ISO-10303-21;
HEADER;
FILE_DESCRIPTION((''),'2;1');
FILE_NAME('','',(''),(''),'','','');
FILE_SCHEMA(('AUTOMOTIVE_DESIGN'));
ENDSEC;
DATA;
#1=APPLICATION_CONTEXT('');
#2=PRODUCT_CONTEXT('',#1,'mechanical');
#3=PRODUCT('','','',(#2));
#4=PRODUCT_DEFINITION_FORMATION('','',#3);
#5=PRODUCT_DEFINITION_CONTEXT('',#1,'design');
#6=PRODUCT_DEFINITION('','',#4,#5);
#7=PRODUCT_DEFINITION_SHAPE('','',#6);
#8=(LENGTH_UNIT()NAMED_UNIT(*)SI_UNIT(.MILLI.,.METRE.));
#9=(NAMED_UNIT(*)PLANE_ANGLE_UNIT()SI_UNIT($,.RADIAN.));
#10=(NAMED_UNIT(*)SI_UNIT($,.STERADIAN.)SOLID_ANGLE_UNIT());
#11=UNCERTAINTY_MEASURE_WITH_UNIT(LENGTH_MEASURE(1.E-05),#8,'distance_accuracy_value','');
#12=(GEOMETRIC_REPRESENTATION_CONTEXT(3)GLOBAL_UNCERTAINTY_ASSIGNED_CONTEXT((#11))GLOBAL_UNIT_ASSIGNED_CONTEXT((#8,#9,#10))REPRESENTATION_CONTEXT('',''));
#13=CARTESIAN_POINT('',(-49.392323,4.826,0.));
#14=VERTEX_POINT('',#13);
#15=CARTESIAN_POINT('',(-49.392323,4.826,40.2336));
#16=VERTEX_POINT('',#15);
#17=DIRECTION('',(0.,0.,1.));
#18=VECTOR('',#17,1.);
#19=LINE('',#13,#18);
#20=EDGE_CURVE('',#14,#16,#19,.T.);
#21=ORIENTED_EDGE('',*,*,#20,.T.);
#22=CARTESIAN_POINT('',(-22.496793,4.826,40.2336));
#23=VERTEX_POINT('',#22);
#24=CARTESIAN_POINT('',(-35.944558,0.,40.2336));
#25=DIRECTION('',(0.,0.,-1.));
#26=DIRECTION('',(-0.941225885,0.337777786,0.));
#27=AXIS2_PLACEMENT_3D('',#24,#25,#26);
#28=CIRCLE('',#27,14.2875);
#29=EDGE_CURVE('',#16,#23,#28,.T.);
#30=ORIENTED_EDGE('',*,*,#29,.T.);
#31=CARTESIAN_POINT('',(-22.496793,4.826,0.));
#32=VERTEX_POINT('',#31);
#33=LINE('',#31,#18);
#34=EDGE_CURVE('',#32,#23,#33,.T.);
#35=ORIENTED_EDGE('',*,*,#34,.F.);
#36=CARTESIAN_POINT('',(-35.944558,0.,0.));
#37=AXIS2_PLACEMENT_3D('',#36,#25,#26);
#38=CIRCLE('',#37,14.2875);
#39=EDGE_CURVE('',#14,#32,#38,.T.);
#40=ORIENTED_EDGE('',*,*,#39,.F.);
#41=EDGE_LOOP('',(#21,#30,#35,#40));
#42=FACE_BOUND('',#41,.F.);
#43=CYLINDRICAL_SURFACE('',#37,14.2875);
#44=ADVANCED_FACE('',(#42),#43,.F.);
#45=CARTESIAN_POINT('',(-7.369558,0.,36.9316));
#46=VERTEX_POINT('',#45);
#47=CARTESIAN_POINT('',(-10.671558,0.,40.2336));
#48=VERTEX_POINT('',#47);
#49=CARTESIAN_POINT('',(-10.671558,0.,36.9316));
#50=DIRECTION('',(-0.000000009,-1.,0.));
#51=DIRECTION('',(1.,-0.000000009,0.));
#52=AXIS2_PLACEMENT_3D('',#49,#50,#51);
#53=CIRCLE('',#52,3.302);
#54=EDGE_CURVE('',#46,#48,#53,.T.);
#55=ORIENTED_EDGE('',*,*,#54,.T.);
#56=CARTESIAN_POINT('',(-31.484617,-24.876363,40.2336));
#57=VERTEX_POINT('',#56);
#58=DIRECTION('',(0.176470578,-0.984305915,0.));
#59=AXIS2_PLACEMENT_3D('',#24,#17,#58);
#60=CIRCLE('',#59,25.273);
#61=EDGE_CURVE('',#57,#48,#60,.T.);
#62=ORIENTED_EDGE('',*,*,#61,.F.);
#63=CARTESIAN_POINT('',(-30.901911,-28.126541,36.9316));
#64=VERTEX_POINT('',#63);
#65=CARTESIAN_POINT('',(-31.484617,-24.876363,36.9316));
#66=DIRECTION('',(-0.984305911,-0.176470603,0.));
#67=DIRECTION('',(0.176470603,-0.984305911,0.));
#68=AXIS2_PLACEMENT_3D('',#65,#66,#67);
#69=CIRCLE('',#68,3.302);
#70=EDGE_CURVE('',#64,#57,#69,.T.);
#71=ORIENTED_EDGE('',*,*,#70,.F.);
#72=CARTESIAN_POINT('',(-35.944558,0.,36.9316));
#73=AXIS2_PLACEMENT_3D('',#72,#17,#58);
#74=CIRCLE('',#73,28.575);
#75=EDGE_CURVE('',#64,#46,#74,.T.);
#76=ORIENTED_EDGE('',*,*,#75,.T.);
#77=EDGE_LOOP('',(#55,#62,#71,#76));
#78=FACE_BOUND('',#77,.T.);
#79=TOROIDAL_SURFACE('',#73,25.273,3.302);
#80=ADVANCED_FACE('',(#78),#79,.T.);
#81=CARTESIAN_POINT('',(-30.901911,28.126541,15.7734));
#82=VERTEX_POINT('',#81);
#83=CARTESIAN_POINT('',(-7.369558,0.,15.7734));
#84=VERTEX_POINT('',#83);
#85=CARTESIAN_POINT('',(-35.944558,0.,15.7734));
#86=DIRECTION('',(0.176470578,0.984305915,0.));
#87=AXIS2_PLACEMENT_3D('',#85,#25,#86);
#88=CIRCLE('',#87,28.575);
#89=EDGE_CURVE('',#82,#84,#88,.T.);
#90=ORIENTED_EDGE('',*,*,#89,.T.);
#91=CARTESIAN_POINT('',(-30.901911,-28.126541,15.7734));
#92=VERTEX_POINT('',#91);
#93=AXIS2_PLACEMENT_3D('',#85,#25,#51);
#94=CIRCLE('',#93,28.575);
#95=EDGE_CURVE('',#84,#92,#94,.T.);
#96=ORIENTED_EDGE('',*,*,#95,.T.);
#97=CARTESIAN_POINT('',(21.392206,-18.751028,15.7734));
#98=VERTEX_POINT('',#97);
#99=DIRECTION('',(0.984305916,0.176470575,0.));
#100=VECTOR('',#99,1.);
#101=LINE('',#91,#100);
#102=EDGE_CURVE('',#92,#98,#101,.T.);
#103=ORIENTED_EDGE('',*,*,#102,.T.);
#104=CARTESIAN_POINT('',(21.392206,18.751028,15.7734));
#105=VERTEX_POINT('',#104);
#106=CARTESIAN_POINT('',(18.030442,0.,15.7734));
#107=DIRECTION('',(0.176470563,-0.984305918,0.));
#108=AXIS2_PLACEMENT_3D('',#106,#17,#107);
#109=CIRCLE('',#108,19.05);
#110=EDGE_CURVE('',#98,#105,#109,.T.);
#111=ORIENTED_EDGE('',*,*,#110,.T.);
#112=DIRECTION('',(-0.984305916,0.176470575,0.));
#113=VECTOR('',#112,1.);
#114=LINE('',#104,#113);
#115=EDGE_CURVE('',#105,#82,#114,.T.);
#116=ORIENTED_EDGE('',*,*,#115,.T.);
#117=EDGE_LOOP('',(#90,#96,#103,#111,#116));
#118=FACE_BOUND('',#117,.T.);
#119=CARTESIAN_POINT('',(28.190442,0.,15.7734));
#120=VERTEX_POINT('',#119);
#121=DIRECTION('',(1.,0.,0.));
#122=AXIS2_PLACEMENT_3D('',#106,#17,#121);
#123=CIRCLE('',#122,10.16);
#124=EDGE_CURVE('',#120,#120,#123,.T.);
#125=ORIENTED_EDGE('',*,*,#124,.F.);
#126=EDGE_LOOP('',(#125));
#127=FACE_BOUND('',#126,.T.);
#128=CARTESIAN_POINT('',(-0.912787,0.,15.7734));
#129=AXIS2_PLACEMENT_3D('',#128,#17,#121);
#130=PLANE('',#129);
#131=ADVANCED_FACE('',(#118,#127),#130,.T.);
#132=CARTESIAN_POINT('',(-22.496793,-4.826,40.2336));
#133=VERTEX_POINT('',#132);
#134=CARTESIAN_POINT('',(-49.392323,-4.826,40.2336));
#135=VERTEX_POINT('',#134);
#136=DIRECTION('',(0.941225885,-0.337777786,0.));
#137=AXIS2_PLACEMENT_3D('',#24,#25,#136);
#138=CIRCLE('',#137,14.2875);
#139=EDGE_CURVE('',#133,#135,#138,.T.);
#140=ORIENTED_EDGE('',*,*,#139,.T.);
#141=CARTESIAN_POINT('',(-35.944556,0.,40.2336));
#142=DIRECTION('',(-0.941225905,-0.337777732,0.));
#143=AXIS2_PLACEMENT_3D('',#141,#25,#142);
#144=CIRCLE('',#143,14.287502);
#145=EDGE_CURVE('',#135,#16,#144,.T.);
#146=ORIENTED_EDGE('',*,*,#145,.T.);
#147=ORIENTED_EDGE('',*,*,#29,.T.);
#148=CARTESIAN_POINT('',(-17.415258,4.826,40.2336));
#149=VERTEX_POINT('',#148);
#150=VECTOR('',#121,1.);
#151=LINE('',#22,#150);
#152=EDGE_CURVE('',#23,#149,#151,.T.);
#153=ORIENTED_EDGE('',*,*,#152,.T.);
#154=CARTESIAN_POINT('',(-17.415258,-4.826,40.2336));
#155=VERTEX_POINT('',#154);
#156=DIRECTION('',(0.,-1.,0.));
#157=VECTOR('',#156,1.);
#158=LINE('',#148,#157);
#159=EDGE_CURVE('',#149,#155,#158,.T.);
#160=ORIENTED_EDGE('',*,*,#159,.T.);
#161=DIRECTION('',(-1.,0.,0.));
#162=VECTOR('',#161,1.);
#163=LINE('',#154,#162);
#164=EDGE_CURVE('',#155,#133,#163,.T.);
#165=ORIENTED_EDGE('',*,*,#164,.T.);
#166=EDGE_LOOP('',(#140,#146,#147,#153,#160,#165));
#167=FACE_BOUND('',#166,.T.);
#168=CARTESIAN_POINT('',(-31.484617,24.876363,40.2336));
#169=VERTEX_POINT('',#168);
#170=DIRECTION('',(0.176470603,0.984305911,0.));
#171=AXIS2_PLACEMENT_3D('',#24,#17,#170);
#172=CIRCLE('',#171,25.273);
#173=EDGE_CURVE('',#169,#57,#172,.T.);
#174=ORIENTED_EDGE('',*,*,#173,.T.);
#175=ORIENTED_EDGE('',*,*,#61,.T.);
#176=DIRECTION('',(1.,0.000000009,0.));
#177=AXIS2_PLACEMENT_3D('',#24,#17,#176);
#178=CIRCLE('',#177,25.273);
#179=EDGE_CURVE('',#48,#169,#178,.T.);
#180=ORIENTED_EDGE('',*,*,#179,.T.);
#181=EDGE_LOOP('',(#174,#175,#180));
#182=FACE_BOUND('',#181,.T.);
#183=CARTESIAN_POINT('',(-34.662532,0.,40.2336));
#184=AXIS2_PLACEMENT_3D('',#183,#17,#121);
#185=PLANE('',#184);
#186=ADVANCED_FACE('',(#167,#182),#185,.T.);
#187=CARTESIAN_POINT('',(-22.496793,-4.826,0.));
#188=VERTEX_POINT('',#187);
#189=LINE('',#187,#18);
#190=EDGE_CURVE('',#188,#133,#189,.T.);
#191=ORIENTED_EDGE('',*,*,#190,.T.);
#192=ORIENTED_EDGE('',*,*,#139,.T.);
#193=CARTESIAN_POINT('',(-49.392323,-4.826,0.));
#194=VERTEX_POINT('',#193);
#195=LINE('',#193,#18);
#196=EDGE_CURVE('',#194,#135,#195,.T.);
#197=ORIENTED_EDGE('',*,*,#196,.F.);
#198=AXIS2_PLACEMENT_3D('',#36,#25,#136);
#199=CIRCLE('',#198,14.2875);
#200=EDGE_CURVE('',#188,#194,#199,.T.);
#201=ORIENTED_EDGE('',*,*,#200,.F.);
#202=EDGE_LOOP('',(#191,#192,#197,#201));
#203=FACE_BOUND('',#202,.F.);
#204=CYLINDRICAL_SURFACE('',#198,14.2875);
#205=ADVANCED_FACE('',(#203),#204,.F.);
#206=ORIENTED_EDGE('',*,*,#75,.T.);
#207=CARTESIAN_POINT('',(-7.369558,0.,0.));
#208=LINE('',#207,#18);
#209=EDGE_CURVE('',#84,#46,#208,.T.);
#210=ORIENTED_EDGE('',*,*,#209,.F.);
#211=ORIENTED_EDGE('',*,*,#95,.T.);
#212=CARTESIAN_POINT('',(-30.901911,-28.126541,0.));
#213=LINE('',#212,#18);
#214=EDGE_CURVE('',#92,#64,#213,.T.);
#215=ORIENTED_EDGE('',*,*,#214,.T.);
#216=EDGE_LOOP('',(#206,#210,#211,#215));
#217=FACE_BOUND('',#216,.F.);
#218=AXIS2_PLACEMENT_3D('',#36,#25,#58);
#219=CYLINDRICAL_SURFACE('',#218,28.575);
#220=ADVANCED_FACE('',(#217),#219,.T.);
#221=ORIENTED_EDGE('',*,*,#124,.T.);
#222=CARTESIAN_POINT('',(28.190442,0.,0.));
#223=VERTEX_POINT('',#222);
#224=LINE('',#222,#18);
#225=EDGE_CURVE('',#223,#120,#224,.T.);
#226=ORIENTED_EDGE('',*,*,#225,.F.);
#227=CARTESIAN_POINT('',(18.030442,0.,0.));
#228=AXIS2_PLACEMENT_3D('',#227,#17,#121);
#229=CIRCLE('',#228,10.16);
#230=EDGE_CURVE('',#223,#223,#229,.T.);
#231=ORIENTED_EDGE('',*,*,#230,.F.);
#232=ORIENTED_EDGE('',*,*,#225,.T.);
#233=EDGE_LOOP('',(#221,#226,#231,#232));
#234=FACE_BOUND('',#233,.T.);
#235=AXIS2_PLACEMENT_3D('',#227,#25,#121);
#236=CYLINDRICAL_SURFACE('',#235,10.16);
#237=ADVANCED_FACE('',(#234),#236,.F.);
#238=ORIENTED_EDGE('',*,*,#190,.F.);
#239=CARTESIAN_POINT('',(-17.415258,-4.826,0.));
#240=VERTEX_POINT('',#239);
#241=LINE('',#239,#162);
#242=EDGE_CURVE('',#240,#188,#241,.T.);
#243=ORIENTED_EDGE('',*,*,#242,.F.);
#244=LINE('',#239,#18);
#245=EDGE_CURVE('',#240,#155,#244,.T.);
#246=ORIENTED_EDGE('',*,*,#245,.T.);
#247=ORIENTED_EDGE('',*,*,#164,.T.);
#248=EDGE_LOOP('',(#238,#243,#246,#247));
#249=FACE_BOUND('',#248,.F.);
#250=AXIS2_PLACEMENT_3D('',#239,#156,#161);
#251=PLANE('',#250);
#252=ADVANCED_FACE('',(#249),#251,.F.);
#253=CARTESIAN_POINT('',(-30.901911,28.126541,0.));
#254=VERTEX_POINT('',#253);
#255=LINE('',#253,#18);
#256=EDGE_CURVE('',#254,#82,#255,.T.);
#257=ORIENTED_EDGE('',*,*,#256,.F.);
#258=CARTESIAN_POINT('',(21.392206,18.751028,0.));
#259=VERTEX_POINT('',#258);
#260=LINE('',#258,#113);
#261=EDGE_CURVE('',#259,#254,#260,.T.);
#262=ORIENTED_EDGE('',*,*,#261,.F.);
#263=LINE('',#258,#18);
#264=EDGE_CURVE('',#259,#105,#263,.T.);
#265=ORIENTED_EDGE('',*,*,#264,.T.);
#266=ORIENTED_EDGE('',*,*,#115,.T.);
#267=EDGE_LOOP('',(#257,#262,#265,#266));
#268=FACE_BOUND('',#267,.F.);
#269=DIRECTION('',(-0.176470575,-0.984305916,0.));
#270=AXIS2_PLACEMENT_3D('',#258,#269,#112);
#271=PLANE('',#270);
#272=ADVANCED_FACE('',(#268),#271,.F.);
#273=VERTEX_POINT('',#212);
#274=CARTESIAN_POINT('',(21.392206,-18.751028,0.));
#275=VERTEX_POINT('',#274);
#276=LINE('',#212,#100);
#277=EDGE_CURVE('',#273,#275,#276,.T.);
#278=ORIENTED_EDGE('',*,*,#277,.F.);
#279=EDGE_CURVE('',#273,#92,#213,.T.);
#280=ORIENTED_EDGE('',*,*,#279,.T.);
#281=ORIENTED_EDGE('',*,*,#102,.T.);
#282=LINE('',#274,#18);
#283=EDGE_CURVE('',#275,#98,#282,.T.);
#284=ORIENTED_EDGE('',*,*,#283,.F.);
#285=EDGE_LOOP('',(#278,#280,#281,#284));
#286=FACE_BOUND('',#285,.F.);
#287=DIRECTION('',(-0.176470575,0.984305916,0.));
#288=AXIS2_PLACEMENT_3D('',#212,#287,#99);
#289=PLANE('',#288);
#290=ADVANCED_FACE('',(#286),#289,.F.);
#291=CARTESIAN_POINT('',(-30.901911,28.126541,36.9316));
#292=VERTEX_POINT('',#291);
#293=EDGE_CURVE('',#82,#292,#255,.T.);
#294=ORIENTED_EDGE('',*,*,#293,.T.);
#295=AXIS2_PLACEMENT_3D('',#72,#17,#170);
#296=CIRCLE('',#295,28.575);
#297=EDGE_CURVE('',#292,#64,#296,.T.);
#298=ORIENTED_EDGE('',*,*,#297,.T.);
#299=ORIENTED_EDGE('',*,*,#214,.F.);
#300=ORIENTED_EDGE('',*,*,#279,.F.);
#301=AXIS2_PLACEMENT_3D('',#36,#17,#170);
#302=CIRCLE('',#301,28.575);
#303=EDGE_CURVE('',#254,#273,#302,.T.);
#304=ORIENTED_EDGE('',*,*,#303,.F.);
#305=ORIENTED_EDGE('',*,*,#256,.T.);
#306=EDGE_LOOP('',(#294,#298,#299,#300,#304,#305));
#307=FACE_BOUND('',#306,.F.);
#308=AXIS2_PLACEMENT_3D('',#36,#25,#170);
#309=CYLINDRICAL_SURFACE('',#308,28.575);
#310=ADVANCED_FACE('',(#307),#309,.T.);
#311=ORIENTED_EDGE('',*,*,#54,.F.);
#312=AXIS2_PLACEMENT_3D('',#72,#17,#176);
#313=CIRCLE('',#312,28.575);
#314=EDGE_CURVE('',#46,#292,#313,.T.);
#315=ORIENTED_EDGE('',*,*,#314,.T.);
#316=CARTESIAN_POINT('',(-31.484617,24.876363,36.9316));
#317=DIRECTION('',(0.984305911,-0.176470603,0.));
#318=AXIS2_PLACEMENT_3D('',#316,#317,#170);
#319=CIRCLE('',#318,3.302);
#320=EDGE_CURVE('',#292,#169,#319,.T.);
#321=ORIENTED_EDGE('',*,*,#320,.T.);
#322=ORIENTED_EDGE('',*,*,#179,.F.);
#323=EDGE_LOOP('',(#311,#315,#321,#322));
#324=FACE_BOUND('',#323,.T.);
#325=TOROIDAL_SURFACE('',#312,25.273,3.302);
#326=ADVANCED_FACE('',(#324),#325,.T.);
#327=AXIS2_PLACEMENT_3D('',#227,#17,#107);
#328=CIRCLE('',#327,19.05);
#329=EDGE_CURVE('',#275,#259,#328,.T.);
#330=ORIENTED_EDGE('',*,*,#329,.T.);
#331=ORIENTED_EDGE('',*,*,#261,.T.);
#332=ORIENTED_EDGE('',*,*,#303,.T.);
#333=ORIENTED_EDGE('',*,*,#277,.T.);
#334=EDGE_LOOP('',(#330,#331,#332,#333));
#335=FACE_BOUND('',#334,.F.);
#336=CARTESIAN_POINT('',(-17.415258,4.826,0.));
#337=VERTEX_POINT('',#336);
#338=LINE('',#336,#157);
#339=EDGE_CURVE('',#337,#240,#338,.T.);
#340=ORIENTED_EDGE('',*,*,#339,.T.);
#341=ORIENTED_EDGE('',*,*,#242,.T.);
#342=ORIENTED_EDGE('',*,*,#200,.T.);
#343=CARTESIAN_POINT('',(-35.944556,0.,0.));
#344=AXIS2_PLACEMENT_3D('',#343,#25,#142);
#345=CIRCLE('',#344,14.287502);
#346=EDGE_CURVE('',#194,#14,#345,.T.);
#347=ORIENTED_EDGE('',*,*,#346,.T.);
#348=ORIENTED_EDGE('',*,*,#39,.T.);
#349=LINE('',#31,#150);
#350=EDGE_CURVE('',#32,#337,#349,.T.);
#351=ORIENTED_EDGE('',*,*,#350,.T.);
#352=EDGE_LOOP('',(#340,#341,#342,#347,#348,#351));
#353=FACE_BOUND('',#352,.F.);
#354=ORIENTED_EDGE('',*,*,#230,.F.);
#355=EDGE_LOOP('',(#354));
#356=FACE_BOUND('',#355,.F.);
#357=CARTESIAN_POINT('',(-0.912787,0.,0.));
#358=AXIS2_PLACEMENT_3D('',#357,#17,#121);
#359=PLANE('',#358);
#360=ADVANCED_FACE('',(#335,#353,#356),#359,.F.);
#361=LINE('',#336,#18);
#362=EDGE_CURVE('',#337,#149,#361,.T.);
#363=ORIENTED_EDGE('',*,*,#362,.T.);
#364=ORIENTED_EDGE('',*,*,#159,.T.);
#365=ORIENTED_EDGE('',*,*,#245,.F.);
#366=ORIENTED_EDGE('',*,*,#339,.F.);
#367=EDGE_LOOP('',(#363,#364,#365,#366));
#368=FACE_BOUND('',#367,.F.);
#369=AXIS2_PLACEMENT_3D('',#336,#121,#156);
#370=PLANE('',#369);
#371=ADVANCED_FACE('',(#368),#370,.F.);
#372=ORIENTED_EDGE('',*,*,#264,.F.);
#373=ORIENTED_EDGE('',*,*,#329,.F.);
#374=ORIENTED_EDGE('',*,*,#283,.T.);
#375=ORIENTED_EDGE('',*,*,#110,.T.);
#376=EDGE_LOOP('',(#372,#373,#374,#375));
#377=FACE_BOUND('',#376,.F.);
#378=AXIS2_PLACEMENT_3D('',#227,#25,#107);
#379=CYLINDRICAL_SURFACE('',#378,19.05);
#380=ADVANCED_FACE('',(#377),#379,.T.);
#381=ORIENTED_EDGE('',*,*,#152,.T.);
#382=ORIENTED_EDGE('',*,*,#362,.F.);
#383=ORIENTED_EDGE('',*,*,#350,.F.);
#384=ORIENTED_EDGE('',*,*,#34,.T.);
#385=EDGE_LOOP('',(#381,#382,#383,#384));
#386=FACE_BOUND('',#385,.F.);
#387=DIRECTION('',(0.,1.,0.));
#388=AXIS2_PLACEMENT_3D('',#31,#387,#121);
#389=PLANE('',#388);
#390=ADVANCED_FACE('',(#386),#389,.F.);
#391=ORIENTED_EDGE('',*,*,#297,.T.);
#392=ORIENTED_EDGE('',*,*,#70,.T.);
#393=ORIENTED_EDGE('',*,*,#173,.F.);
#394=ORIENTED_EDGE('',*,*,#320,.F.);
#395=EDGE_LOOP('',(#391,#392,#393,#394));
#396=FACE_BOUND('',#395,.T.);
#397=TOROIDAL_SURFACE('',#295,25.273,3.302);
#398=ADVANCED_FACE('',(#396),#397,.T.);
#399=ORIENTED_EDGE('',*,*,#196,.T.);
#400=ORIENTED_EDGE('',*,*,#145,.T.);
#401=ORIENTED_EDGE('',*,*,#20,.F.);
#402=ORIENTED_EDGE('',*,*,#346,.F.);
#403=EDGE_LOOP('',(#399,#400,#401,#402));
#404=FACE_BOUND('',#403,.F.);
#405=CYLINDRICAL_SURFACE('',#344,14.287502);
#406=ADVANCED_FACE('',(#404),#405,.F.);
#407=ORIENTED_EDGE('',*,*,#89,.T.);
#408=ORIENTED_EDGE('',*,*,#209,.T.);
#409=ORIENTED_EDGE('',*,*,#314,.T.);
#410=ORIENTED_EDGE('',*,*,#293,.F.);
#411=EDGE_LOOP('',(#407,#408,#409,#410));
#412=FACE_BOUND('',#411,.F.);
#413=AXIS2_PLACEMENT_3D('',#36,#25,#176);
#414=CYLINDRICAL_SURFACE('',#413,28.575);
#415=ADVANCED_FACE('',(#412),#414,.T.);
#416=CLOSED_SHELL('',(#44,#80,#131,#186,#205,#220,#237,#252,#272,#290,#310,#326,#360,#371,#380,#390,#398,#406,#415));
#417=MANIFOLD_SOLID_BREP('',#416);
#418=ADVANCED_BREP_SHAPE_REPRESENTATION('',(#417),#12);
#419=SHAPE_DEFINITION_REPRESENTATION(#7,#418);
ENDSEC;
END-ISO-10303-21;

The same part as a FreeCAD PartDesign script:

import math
import FreeCAD as App
import Part
import Sketcher

V = App.Vector
Q = App.Units.Quantity


def edges_at(feature, points):
    """Names of the edges that pass closest to the given points."""
    edges = feature.Shape.Edges
    near = lambda p: min(range(len(edges)), key=lambda i: edges[i].distToShape(Part.Vertex(*p))[0])
    return sorted({f"Edge{near(p) + 1}" for p in points})

doc = App.newDocument("Part")
params = doc.addObject("Spreadsheet::Sheet", "Params")
for row, (alias, value) in enumerate([
    ("sketch1_radius", "1.125 in"),
    ("sketch1_radius2", "0.5625 in"),
    ("sketch1_height", "0.38 in"),
    ("pad1_length", "1.584 in"),
    ("sketch2_diameter", "0.8 in"),
    ("sketch2_radius", "0.75 in"),
    ("sketch2_radius2", "1.125 in"),
    ("pad2_length", "0.621 in"),
    ("fillet_radius", "0.13 in"),
], start=1):
    params.set(f"A{row}", alias)
    params.set(f"B{row}", "=" + value)
    params.setAlias(f"B{row}", alias)

body = doc.addObject("PartDesign::Body", "Body")

# Sketch on XY plane
sketch1 = body.newObject("Sketcher::SketchObject", "Sketch")
sketch1.AttachmentSupport = (doc.getObject("XY_Plane"), [""])
sketch1.MapMode = "FlatFace"
sketch1.addGeometry(Part.ArcOfCircle(Part.Circle(V(-35.944558, 0, 0), V(0, 0, 1), 28.575), math.radians(-79.835752), math.radians(0)), False)
sketch1.addGeometry(Part.ArcOfCircle(Part.Circle(V(-35.944558, 0, 0), V(0, 0, 1), 28.575), math.radians(0), math.radians(79.835752)), False)
sketch1.addGeometry(Part.ArcOfCircle(Part.Circle(V(-35.944558, 0, 0), V(0, 0, 1), 28.575), math.radians(79.835751), math.radians(280.164249)), False)
sketch1.addGeometry(Part.ArcOfCircle(Part.Circle(V(-35.944558, 0, 0), V(0, 0, 1), 14.2875), math.radians(-160.258458), math.radians(-19.741542)), False)
sketch1.addGeometry(Part.ArcOfCircle(Part.Circle(V(-35.944556, 0, 0), V(0, 0, 1), 14.287502), math.radians(160.258461), math.radians(199.741539)), False)
sketch1.addGeometry(Part.ArcOfCircle(Part.Circle(V(-35.944558, 0, 0), V(0, 0, 1), 14.2875), math.radians(19.741542), math.radians(160.258458)), False)
sketch1.addGeometry(Part.LineSegment(V(-22.496793, 4.826, 0), V(-17.415258, 4.826, 0)), False)
sketch1.addGeometry(Part.LineSegment(V(-17.415258, 4.826, 0), V(-17.415258, -4.826, 0)), False)
sketch1.addGeometry(Part.LineSegment(V(-17.415258, -4.826, 0), V(-22.496793, -4.826, 0)), False)
sketch1.addConstraint(Sketcher.Constraint("Tangent", 0, 2, 1, 1))
sketch1.addConstraint(Sketcher.Constraint("Tangent", 1, 2, 2, 1))
sketch1.addConstraint(Sketcher.Constraint("Tangent", 2, 2, 0, 1))
sketch1.addConstraint(Sketcher.Constraint("Tangent", 3, 1, 4, 2))
sketch1.addConstraint(Sketcher.Constraint("Tangent", 4, 1, 5, 2))
sketch1.addConstraint(Sketcher.Constraint("Coincident", 5, 1, 6, 1))
sketch1.addConstraint(Sketcher.Constraint("Coincident", 6, 2, 7, 1))
sketch1.addConstraint(Sketcher.Constraint("Coincident", 7, 2, 8, 1))
sketch1.addConstraint(Sketcher.Constraint("Coincident", 8, 2, 3, 2))
sketch1.addConstraint(Sketcher.Constraint("Horizontal", 6))
sketch1.addConstraint(Sketcher.Constraint("Vertical", 7))
sketch1.addConstraint(Sketcher.Constraint("Horizontal", 8))
sketch1.addConstraint(Sketcher.Constraint("Coincident", 3, 3, 0, 3))
sketch1.addConstraint(Sketcher.Constraint("Coincident", 5, 3, 0, 3))
sketch1.addConstraint(Sketcher.Constraint("Symmetric", 1, 2, 2, 2, -1))
sketch1.addConstraint(Sketcher.Constraint("PointOnObject", 0, 2, -1))
sketch1.addConstraint(Sketcher.Constraint("Horizontal", 4, 1, 5, 1))
sketch1.addConstraint(Sketcher.Constraint("Horizontal", 3, 1, 7, 2))
sketch1.addConstraint(Sketcher.Constraint("Vertical", 3, 1, 4, 1))
sketch1.addConstraint(Sketcher.Constraint("Radius", 0, Q("1.125 in")))
sketch1.addConstraint(Sketcher.Constraint("Radius", 3, Q("0.5625 in")))
sketch1.addConstraint(Sketcher.Constraint("DistanceY", 7, 2, 7, 1, Q("0.38 in")))
sketch1.addConstraint(Sketcher.Constraint("DistanceX", 6, 2, 0, 2, Q("0.3955 in")))
sketch1.addConstraint(Sketcher.Constraint("DistanceX", 2, 3, -1, 1, Q("35.944558 mm")))
sketch1.addConstraint(Sketcher.Constraint("DistanceX", 1, 2, -1, 1, Q("30.901911 mm")))
sketch1.setExpression("Constraints[19]", "Params.sketch1_radius")
sketch1.setExpression("Constraints[20]", "Params.sketch1_radius2")
sketch1.setExpression("Constraints[21]", "Params.sketch1_height")
pad1 = body.newObject("PartDesign::Pad", "Pad")
pad1.Profile = sketch1
pad1.setExpression("Length", "Params.pad1_length")

# Sketch on XY plane
sketch2 = body.newObject("Sketcher::SketchObject", "Sketch001")
sketch2.AttachmentSupport = (doc.getObject("XY_Plane"), [""])
sketch2.MapMode = "FlatFace"
sketch2.addGeometry(Part.ArcOfCircle(Part.Circle(V(-35.944558, 0, 0), V(0, 0, 1), 28.575), math.radians(0), math.radians(79.835752)), False)
sketch2.addGeometry(Part.ArcOfCircle(Part.Circle(V(-35.944558, 0, 0), V(0, 0, 1), 28.575), math.radians(-79.835752), math.radians(0)), False)
sketch2.addGeometry(Part.LineSegment(V(-30.901911, -28.126541, 0), V(21.392206, -18.751028, 0)), False)
sketch2.addGeometry(Part.ArcOfCircle(Part.Circle(V(18.030442, 0, 0), V(0, 0, 1), 19.05), math.radians(-79.835753), math.radians(79.835753)), False)
sketch2.addGeometry(Part.LineSegment(V(21.392206, 18.751028, 0), V(-30.901911, 28.126541, 0)), False)
sketch2.addGeometry(Part.Circle(V(18.030442, 0, 0), V(0, 0, 1), 10.16), False)
sketch2.addConstraint(Sketcher.Constraint("Tangent", 0, 1, 1, 2))
sketch2.addConstraint(Sketcher.Constraint("Tangent", 1, 1, 2, 1))
sketch2.addConstraint(Sketcher.Constraint("Tangent", 2, 2, 3, 1))
sketch2.addConstraint(Sketcher.Constraint("Tangent", 3, 2, 4, 1))
sketch2.addConstraint(Sketcher.Constraint("Tangent", 4, 2, 0, 2))
sketch2.addConstraint(Sketcher.Constraint("Coincident", 5, 3, 3, 3))
sketch2.addConstraint(Sketcher.Constraint("Equal", 0, 1))
sketch2.addConstraint(Sketcher.Constraint("Symmetric", 2, 2, 3, 2, -1))
sketch2.addConstraint(Sketcher.Constraint("PointOnObject", 0, 1, -1))
sketch2.addConstraint(Sketcher.Constraint("Diameter", 5, Q("0.8 in")))
sketch2.addConstraint(Sketcher.Constraint("Radius", 3, Q("0.75 in")))
sketch2.addConstraint(Sketcher.Constraint("Radius", 0, Q("1.125 in")))
sketch2.addConstraint(Sketcher.Constraint("DistanceX", 0, 1, 3, 3, Q("1 in")))
sketch2.addConstraint(Sketcher.Constraint("DistanceX", -1, 1, 3, 3, Q("18.030442 mm")))
sketch2.setExpression("Constraints[9]", "Params.sketch2_diameter")
sketch2.setExpression("Constraints[10]", "Params.sketch2_radius")
sketch2.setExpression("Constraints[11]", "Params.sketch2_radius2")
pad2 = body.newObject("PartDesign::Pad", "Pad001")
pad2.Profile = sketch2
pad2.setExpression("Length", "Params.pad2_length")
doc.recompute()

fillet = body.newObject("PartDesign::Fillet", "Fillet")
fillet.Base = (pad2, edges_at(pad2, [(-64.52, 0, 40.234)]))
fillet.setExpression("Radius", "Params.fillet_radius")

doc.recompute()
